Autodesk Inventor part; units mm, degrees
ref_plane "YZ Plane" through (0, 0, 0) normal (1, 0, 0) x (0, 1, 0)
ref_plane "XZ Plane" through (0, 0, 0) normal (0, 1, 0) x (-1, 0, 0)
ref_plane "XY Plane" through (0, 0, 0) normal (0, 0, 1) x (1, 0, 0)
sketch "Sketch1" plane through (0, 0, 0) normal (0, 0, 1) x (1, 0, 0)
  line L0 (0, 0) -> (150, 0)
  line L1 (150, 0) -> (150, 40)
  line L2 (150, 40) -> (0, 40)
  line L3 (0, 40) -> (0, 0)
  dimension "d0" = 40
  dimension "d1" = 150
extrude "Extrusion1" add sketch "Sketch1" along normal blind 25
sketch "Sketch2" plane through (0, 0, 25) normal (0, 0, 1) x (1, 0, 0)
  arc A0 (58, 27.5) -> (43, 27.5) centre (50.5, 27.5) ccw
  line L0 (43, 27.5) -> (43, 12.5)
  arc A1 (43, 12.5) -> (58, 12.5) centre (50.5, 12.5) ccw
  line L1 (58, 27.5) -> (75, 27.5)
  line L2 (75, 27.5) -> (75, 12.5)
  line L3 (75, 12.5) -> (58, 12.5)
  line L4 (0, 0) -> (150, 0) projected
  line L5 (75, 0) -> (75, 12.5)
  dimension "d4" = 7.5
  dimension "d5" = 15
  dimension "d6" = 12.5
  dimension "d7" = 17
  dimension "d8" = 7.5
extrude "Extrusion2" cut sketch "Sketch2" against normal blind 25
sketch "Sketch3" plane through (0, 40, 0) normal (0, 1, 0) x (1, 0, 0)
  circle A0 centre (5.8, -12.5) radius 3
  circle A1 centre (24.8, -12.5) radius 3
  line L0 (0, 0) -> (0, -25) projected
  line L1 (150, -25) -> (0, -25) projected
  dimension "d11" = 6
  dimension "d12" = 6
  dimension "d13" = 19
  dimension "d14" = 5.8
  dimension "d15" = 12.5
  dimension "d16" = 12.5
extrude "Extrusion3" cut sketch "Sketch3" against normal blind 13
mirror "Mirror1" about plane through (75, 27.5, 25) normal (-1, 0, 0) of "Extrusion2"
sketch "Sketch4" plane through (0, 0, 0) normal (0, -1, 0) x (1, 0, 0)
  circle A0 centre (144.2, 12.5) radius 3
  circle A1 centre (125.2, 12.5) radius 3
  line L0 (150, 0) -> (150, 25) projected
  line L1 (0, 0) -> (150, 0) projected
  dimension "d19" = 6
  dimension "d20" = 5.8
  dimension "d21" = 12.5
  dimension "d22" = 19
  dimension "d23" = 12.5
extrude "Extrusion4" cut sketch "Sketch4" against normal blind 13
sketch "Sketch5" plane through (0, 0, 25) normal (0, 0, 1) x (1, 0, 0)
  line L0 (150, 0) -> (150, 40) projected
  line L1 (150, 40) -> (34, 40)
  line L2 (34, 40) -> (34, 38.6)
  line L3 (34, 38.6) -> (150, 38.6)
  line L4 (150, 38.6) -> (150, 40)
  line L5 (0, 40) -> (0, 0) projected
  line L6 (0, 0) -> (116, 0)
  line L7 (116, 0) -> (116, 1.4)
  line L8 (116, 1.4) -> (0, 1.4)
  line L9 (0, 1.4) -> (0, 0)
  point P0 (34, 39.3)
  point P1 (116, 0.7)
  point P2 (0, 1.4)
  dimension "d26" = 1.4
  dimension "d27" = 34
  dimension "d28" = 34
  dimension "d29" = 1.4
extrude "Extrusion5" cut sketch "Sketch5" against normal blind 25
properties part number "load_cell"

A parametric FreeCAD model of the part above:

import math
import FreeCAD as App
import Part
import Sketcher


def add_polygon(sketch, points):
    """Adds a closed chain of lines whose ends are joined by coincident constraints."""
    first, n = sketch.GeometryCount, len(points)
    for a, b in zip(points, points[1:] + points[:1]):
        sketch.addGeometry(Part.LineSegment(App.Vector(*a, 0), App.Vector(*b, 0)), False)
    for i in range(n):
        sketch.addConstraint(Sketcher.Constraint("Coincident", first + i, 2, first + (i + 1) % n, 1))

doc = App.newDocument("Part")
params = doc.addObject("Spreadsheet::Sheet", "Params")
for row, (alias, value) in enumerate([
    ("sketch1_width", "150 mm"),
    ("sketch1_height", "40 mm"),
    ("pad1_length", "25 mm"),
    ("sketch2_radius", "7.5 mm"),
    ("sketch2_width", "17 mm"),
    ("sketch2_height", "15 mm"),
    ("pocket1_length", "25 mm"),
    ("sketch3_diameter", "6 mm"),
    ("pocket2_length", "13 mm"),
    ("sketch4_diameter", "6 mm"),
    ("pocket3_length", "13 mm"),
    ("sketch5_height", "1.4 mm"),
    ("sketch5_width", "116 mm"),
    ("pocket4_length", "25 mm"),
], start=1):
    params.set(f"A{row}", alias)
    params.set(f"B{row}", "=" + value)
    params.setAlias(f"B{row}", alias)

body = doc.addObject("PartDesign::Body", "Body")

# Sketch on XY plane
sketch1 = body.newObject("Sketcher::SketchObject", "Sketch")
sketch1.AttachmentSupport = (doc.getObject("XY_Plane"), [""])
sketch1.MapMode = "FlatFace"
add_polygon(sketch1, [(0, 40), (0, 0), (150, 0), (150, 40)])  # lines 0-3
sketch1.addConstraint([
    Sketcher.Constraint("Vertical", 0),
    Sketcher.Constraint("Horizontal", 1),
    Sketcher.Constraint("Vertical", 2),
    Sketcher.Constraint("Horizontal", 3),
    Sketcher.Constraint("Coincident", 0, 2, -1, 1),
    Sketcher.Constraint("DistanceX", 1, 1, 1, 2, 150.0),
    Sketcher.Constraint("DistanceY", 0, 2, 0, 1, 40.0),
])
sketch1.setExpression("Constraints[9]", "Params.sketch1_width")
sketch1.setExpression("Constraints[10]", "Params.sketch1_height")
pad1 = body.newObject("PartDesign::Pad", "Pad")
pad1.Profile = sketch1
pad1.setExpression("Length", "Params.pad1_length")

# Sketch on XY plane
sketch2 = body.newObject("Sketcher::SketchObject", "Sketch001")
sketch2.AttachmentSupport = (doc.getObject("XY_Plane"), [""])
sketch2.MapMode = "FlatFace"
sketch2.AttachmentOffset = App.Placement(App.Vector(0, 0, 25), App.Rotation())
sketch2.addGeometry([
    Part.LineSegment(App.Vector(75, 28, 0), App.Vector(58, 28, 0)),  # 0
    Part.ArcOfCircle(Part.Circle(App.Vector(50, 28, 0), App.Vector(0, 0, 1), 8), math.radians(0), math.radians(180)),  # 1
    Part.LineSegment(App.Vector(43, 28, 0), App.Vector(43, 12, 0)),  # 2
    Part.ArcOfCircle(Part.Circle(App.Vector(50, 12, 0), App.Vector(0, 0, 1), 8), math.radians(180), math.radians(360)),  # 3
    Part.LineSegment(App.Vector(58, 12, 0), App.Vector(75, 12, 0)),  # 4
    Part.LineSegment(App.Vector(75, 12, 0), App.Vector(75, 28, 0)),  # 5
], False)
sketch2.addConstraint([
    Sketcher.Constraint("Coincident", 0, 2, 1, 1),
    Sketcher.Constraint("Tangent", 1, 2, 2, 1),
    Sketcher.Constraint("Tangent", 2, 2, 3, 1),
    Sketcher.Constraint("Coincident", 3, 2, 4, 1),
    Sketcher.Constraint("Coincident", 4, 2, 5, 1),
    Sketcher.Constraint("Coincident", 5, 2, 0, 1),
    Sketcher.Constraint("Horizontal", 0),
    Sketcher.Constraint("Vertical", 2),
    Sketcher.Constraint("Horizontal", 4),
    Sketcher.Constraint("Vertical", 5),
    Sketcher.Constraint("Equal", 1, 3),
    Sketcher.Constraint("Horizontal", 1, 3, 0, 2),
    Sketcher.Constraint("Horizontal", 2, 2, 3, 2),
    Sketcher.Constraint("Radius", 1, 7.5),
    Sketcher.Constraint("DistanceX", 0, 2, 0, 1, 17.0),
    Sketcher.Constraint("DistanceY", 2, 2, 2, 1, 15.0),
    Sketcher.Constraint("DistanceY", -1, 1, 3, 3, 12.5),
    Sketcher.Constraint("DistanceX", -1, 1, 0, 2, 58.0),
])
sketch2.setExpression("Constraints[13]", "Params.sketch2_radius")
sketch2.setExpression("Constraints[14]", "Params.sketch2_width")
sketch2.setExpression("Constraints[15]", "Params.sketch2_height")
pocket1 = body.newObject("PartDesign::Pocket", "Pocket")
pocket1.Profile = sketch2
pocket1.setExpression("Length", "Params.pocket1_length")

# Sketch on XZ plane
sketch3 = body.newObject("Sketcher::SketchObject", "Sketch002")
sketch3.AttachmentSupport = (doc.getObject("XZ_Plane"), [""])
sketch3.MapMode = "FlatFace"
sketch3.AttachmentOffset = App.Placement(App.Vector(0, 0, -40), App.Rotation())
sketch3.addGeometry([
    Part.Circle(App.Vector(5.8, 12.5, 0), App.Vector(0, 0, 1), 3),
    Part.Circle(App.Vector(24.8, 12.5, 0), App.Vector(0, 0, 1), 3),
], False)
sketch3.addConstraint([
    Sketcher.Constraint("Equal", 0, 1),
    Sketcher.Constraint("Horizontal", 0, 3, 1, 3),
    Sketcher.Constraint("Diameter", 0, 6.0),
    Sketcher.Constraint("DistanceX", 0, 3, 1, 3, 19.0),
    Sketcher.Constraint("DistanceX", -1, 1, 0, 3, 5.8),
    Sketcher.Constraint("DistanceY", -1, 1, 0, 3, 12.5),
])
sketch3.setExpression("Constraints[2]", "Params.sketch3_diameter")
pocket2 = body.newObject("PartDesign::Pocket", "Pocket001")
pocket2.Profile = sketch3
pocket2.setExpression("Length", "Params.pocket2_length")
pocket2.Reversed = True
doc.recompute()

datumplane = body.newObject("PartDesign::Plane", "DatumPlane")
datumplane.AttachmentSupport = (doc.getObject("YZ_Plane"), [""])
datumplane.MapMode = "FlatFace"
datumplane.AttachmentOffset = App.Placement(App.Vector(0, 0, 75), App.Rotation())
mirrored = body.newObject("PartDesign::Mirrored", "Mirrored")
mirrored.Originals = [pocket1]
mirrored.MirrorPlane = (datumplane, [""])
body.Tip = mirrored

# Sketch on XZ plane
sketch4 = body.newObject("Sketcher::SketchObject", "Sketch003")
sketch4.AttachmentSupport = (doc.getObject("XZ_Plane"), [""])
sketch4.MapMode = "FlatFace"
sketch4.addGeometry([
    Part.Circle(App.Vector(144.2, 12.5, 0), App.Vector(0, 0, 1), 3),
    Part.Circle(App.Vector(125.2, 12.5, 0), App.Vector(0, 0, 1), 3),
], False)
sketch4.addConstraint([
    Sketcher.Constraint("Equal", 0, 1),
    Sketcher.Constraint("Horizontal", 0, 3, 1, 3),
    Sketcher.Constraint("Diameter", 0, 6.0),
    Sketcher.Constraint("DistanceX", 1, 3, 0, 3, 19.0),
    Sketcher.Constraint("DistanceY", -1, 1, 0, 3, 12.5),
    Sketcher.Constraint("DistanceX", -1, 1, 0, 3, 144.2),
])
sketch4.setExpression("Constraints[2]", "Params.sketch4_diameter")
pocket3 = body.newObject("PartDesign::Pocket", "Pocket002")
pocket3.Profile = sketch4
pocket3.setExpression("Length", "Params.pocket3_length")

# Sketch on XY plane
sketch5 = body.newObject("Sketcher::SketchObject", "Sketch004")
sketch5.AttachmentSupport = (doc.getObject("XY_Plane"), [""])
sketch5.MapMode = "FlatFace"
sketch5.AttachmentOffset = App.Placement(App.Vector(0, 0, 25), App.Rotation())
add_polygon(sketch5, [(34, 38.6), (150, 38.6), (150, 40), (34, 40)])  # lines 0-3
add_polygon(sketch5, [(116, 1.4), (0, 1.4), (0, 0), (116, 0)])  # lines 4-7
sketch5.addConstraint([
    Sketcher.Constraint("Horizontal", 0),
    Sketcher.Constraint("Vertical", 1),
    Sketcher.Constraint("Horizontal", 2),
    Sketcher.Constraint("Vertical", 3),
    Sketcher.Constraint("Horizontal", 4),
    Sketcher.Constraint("Vertical", 5),
    Sketcher.Constraint("Horizontal", 6),
    Sketcher.Constraint("Vertical", 7),
    Sketcher.Constraint("Coincident", 5, 2, -1, 1),
    Sketcher.Constraint("Equal", 2, 4),
    Sketcher.Constraint("Equal", 3, 5),
    Sketcher.Constraint("DistanceY", 1, 1, 1, 2, 1.4),
    Sketcher.Constraint("DistanceX", -1, 1, 2, 2, 34.0),
    Sketcher.Constraint("DistanceX", 0, 1, 0, 2, 116.0),
    Sketcher.Constraint("DistanceY", -1, 1, 1, 2, 40.0),
])
sketch5.setExpression("Constraints[19]", "Params.sketch5_height")
sketch5.setExpression("Constraints[21]", "Params.sketch5_width")
pocket4 = body.newObject("PartDesign::Pocket", "Pocket003")
pocket4.Profile = sketch5
pocket4.setExpression("Length", "Params.pocket4_length")

doc.recompute()
